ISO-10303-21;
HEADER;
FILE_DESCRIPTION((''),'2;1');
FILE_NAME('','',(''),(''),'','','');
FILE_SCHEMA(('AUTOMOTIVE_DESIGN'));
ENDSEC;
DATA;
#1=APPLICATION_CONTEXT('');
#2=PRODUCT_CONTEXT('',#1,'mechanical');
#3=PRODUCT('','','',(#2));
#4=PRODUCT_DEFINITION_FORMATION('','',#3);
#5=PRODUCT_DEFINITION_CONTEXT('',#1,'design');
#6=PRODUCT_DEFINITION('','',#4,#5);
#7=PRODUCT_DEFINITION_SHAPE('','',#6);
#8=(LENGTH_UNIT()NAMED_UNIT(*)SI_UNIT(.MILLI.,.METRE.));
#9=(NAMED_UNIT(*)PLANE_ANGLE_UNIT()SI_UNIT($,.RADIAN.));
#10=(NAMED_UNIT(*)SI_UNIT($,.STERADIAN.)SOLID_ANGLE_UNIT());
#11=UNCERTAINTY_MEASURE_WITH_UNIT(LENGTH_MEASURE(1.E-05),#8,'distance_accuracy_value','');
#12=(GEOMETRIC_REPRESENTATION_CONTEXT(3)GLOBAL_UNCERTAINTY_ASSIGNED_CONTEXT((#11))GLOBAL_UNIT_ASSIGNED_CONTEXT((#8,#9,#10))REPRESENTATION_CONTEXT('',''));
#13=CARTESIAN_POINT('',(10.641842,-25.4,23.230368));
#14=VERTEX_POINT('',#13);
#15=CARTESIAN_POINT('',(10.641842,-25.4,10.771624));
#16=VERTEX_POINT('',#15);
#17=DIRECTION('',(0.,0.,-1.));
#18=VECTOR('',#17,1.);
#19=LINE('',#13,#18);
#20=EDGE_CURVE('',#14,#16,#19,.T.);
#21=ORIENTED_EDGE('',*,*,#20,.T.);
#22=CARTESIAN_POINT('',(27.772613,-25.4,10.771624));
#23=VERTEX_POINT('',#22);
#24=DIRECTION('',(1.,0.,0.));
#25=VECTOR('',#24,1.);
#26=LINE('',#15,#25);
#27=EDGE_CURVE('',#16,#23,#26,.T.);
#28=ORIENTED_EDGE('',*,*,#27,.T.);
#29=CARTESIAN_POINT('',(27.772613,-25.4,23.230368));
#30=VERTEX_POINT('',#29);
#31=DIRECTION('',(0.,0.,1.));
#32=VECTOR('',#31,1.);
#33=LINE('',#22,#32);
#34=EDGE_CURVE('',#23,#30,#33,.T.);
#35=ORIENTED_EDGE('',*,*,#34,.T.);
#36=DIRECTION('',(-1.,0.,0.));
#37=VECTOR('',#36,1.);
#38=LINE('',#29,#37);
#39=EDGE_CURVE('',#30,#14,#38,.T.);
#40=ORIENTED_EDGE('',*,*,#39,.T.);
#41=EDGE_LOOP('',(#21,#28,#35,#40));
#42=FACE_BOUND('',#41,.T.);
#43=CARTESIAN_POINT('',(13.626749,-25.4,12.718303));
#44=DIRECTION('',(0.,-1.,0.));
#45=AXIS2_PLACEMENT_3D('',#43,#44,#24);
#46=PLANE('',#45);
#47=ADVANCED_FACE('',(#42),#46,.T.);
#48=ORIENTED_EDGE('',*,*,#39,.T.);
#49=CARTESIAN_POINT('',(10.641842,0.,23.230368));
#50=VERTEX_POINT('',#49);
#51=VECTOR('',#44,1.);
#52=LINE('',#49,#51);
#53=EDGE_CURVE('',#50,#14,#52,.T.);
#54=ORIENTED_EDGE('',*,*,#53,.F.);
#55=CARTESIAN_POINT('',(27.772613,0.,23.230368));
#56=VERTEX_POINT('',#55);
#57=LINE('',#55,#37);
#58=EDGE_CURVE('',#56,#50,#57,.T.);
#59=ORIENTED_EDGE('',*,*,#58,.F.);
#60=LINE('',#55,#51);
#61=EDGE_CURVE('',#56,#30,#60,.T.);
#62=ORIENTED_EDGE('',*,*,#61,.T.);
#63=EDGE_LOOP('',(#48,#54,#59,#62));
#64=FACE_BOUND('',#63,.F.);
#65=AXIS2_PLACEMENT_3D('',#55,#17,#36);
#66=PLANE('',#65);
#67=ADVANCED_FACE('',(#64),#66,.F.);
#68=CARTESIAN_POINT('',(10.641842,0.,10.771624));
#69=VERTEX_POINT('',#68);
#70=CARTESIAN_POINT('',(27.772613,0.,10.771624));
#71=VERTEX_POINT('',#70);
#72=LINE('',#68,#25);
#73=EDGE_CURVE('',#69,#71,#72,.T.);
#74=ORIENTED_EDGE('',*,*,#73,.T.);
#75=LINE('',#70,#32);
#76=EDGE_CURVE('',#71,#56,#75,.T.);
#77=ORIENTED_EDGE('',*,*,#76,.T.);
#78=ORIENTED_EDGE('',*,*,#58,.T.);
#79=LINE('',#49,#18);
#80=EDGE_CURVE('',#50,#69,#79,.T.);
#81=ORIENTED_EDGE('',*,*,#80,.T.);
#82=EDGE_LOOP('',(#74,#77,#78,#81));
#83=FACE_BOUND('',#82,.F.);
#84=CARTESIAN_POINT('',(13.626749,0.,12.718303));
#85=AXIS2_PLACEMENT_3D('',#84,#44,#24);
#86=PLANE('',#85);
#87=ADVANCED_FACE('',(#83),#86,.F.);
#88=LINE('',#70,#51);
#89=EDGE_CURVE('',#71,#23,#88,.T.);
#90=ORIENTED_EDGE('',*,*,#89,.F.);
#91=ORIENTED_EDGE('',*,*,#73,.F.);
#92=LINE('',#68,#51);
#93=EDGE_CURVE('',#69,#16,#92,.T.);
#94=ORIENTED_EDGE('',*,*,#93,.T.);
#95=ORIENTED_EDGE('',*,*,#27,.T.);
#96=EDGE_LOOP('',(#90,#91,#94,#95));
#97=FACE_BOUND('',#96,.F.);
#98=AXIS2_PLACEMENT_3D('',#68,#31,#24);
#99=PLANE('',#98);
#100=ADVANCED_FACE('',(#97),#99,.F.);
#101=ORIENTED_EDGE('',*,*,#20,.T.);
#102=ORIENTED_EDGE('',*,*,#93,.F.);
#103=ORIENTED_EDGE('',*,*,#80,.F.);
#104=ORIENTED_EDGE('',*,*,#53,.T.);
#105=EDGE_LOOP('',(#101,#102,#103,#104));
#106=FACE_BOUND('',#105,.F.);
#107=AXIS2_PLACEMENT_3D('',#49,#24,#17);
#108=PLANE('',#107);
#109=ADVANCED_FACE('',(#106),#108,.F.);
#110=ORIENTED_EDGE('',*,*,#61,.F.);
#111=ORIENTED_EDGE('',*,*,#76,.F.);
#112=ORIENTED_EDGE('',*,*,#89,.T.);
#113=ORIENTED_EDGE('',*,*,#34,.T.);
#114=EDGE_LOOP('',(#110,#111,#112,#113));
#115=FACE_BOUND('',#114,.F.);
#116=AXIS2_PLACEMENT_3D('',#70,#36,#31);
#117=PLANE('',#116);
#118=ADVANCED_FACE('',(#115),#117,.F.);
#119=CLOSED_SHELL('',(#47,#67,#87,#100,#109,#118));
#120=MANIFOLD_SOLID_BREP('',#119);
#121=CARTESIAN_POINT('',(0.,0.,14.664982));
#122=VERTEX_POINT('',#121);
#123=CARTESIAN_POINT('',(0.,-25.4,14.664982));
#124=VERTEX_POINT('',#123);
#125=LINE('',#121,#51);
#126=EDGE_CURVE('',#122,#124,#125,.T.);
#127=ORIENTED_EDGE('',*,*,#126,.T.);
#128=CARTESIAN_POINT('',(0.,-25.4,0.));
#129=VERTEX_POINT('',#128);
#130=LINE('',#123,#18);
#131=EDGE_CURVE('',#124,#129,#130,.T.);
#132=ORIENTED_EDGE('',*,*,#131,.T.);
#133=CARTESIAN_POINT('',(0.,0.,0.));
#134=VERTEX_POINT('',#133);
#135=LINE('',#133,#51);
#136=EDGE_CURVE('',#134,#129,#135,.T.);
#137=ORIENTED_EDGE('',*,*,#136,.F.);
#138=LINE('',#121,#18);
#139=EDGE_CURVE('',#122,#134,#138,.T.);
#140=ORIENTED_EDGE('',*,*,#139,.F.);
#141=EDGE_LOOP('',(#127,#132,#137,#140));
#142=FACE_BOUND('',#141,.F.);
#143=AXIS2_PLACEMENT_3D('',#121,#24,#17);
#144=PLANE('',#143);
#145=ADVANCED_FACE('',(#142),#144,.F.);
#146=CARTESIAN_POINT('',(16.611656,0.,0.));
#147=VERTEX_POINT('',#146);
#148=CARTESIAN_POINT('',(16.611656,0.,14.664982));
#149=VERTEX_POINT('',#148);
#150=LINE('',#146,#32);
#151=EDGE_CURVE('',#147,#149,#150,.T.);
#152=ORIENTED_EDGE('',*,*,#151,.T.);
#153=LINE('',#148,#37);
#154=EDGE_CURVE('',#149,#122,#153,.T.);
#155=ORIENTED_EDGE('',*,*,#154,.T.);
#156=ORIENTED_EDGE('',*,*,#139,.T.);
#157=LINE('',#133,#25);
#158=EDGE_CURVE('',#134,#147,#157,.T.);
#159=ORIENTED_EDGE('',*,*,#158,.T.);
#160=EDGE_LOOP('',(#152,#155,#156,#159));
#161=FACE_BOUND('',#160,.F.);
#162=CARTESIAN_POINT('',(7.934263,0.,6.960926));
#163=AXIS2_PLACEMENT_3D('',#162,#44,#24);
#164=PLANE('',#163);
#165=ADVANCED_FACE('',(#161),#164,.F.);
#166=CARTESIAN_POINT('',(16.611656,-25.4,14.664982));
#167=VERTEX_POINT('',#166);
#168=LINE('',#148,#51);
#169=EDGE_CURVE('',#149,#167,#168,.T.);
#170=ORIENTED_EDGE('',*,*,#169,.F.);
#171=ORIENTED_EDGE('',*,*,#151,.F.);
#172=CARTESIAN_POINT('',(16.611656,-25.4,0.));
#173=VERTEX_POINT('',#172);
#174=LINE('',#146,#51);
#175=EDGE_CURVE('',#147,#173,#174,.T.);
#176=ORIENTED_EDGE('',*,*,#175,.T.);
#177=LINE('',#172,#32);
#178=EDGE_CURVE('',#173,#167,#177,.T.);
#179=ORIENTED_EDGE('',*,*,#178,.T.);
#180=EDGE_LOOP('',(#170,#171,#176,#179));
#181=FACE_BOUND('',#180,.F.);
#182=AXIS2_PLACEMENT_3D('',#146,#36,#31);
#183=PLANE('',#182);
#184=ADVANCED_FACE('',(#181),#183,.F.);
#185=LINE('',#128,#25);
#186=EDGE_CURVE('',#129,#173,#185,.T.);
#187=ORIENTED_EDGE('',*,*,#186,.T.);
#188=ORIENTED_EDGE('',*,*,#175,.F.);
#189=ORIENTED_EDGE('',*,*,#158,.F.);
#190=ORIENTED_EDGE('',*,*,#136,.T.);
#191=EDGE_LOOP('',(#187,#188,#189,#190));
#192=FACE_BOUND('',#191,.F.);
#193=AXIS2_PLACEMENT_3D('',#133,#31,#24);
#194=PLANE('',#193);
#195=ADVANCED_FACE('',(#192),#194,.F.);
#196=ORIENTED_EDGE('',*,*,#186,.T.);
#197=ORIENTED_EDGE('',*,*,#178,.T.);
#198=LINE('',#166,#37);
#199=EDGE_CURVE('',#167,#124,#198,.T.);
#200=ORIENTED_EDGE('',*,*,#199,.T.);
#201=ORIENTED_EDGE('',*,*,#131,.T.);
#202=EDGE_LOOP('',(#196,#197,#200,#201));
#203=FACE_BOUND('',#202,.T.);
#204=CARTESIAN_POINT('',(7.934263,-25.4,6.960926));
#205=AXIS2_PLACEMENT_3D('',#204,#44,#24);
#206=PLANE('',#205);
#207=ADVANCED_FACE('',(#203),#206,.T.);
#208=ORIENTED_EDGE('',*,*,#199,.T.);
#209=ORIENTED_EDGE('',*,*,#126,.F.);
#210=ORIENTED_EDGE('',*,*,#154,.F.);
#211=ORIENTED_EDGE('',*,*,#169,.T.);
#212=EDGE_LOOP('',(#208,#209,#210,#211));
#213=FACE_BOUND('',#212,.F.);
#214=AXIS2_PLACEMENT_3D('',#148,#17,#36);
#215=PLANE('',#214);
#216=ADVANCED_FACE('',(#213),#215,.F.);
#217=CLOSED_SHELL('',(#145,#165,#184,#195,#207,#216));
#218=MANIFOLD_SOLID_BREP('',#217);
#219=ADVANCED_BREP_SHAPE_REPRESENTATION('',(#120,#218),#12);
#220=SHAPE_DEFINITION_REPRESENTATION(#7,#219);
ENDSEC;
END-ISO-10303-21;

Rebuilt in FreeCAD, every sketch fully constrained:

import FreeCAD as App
import Part
import Sketcher
from FreeCAD import Vector
Q = App.Units.Quantity


def add_polygon(sketch, points):
    """Adds a closed chain of lines whose ends are joined by coincident constraints."""
    first, n = sketch.GeometryCount, len(points)
    for a, b in zip(points, points[1:] + points[:1]):
        sketch.addGeometry(Part.LineSegment(App.Vector(*a, 0), App.Vector(*b, 0)), False)
    for i in range(n):
        sketch.addConstraint(Sketcher.Constraint("Coincident", first + i, 2, first + (i + 1) % n, 1))

doc = App.newDocument("Part")
body = doc.addObject("PartDesign::Body", "Body")

sketch1 = body.newObject("Sketcher::SketchObject", "Sketch")
sketch1.AttachmentSupport = (doc.getObject("XZ_Plane"), [""])
sketch1.MapMode = "FlatFace"
add_polygon(sketch1, [(0, 15), (0, 0), (17, 0), (17, 15)])
sketch1.addConstraint(Sketcher.Constraint("Vertical", 0))
sketch1.addConstraint(Sketcher.Constraint("Horizontal", 1))
sketch1.addConstraint(Sketcher.Constraint("Vertical", 2))
sketch1.addConstraint(Sketcher.Constraint("Horizontal", 3))
sketch1.addConstraint(Sketcher.Constraint("Coincident", 0, 2, -1, 1))
sketch1.addConstraint(Sketcher.Constraint("DistanceX", 1, 1, 1, 2, Q("16.611656 mm")))
sketch1.addConstraint(Sketcher.Constraint("DistanceY", 0, 2, 0, 1, Q("14.664982 mm")))
pad1 = body.newObject("PartDesign::Pad", "Pad")
pad1.Profile = sketch1
pad1.Length = Q("1 in")
body2 = doc.addObject("PartDesign::Body", "Body001")

sketch2 = body2.newObject("Sketcher::SketchObject", "Sketch001")
sketch2.AttachmentSupport = (doc.getObject("XZ_Plane001"), [""])
sketch2.MapMode = "FlatFace"
add_polygon(sketch2, [(11, 11), (28, 11), (28, 23), (11, 23)])
sketch2.addConstraint(Sketcher.Constraint("Horizontal", 0))
sketch2.addConstraint(Sketcher.Constraint("Vertical", 1))
sketch2.addConstraint(Sketcher.Constraint("Horizontal", 2))
sketch2.addConstraint(Sketcher.Constraint("Vertical", 3))
sketch2.addConstraint(Sketcher.Constraint("DistanceX", 0, 1, 0, 2, Q("17.130771 mm")))
sketch2.addConstraint(Sketcher.Constraint("DistanceY", 1, 1, 1, 2, Q("12.458744 mm")))
sketch2.addConstraint(Sketcher.Constraint("DistanceX", -1, 1, 0, 2, Q("27.772613 mm")))
sketch2.addConstraint(Sketcher.Constraint("DistanceY", -1, 1, 0, 2, Q("10.771624 mm")))
pad2 = body2.newObject("PartDesign::Pad", "Pad001")
pad2.Profile = sketch2
pad2.Length = Q("1 in")

doc.recompute()
